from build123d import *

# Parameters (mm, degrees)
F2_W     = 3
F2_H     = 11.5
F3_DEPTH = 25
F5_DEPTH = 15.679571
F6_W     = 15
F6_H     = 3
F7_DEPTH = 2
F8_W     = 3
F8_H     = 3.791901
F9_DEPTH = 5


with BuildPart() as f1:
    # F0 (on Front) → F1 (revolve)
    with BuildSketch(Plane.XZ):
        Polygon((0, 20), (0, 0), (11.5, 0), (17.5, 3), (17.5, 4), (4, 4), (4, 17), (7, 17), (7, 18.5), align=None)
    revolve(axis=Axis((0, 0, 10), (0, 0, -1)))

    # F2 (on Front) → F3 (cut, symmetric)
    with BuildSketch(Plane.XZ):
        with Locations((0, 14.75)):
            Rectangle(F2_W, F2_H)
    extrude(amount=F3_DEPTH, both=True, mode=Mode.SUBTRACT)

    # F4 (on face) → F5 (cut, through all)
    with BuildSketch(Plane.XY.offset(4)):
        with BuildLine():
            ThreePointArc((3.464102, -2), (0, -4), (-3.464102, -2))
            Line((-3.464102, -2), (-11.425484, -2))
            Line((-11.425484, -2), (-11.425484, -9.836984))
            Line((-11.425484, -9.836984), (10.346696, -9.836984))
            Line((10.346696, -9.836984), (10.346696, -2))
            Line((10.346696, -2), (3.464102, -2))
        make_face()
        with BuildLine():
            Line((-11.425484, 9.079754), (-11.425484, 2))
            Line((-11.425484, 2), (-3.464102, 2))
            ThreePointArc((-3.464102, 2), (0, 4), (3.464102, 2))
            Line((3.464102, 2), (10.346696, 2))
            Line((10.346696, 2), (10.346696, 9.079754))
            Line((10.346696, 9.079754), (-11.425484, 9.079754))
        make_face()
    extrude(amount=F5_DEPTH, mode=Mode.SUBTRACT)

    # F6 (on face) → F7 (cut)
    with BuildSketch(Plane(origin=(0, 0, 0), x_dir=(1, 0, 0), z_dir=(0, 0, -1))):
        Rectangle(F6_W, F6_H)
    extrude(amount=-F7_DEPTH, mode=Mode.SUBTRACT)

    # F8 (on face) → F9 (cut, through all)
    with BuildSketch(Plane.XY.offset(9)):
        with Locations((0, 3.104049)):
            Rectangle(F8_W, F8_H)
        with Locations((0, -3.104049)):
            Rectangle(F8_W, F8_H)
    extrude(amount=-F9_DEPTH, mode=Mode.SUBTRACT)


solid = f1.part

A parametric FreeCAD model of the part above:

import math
import FreeCAD as App
import Part
import Sketcher

V = App.Vector
Q = App.Units.Quantity

doc = App.newDocument("Part")
params = doc.addObject("Spreadsheet::Sheet", "Params")
for row, (alias, value) in enumerate([
    ("sketch1_width", "3 mm"),
    ("sketch1_height", "20 mm"),
    ("sketch1_height2", "1 mm"),
    ("sketch1_height3", "13 mm"),
    ("sketch1_width2", "11.5 mm"),
    ("revolution_angle", "360 deg"),
    ("sketch2_width", "3 mm"),
    ("sketch2_height", "11.5 mm"),
    ("pocket1_length", "50 mm"),
    ("sketch3_radius", "4.000001 mm"),
    ("sketch4_width", "15 mm"),
    ("sketch4_height", "3 mm"),
    ("pocket3_length", "2 mm"),
    ("sketch5_width", "3 mm"),
    ("pocket4_length", "5 mm"),
], start=1):
    params.set(f"A{row}", alias)
    params.set(f"B{row}", "=" + value)
    params.setAlias(f"B{row}", alias)

body = doc.addObject("PartDesign::Body", "Body")

sketch1 = doc.addObject("Sketcher::SketchObject", "Sketch")
body.addObject(sketch1)
sketch1.AttachmentSupport = (doc.XZ_Plane, [""])
sketch1.MapMode = "FlatFace"
sketch1.addGeometry([
    Part.LineSegment(V(0, 20, 0), V(0, 0, 0)),
    Part.LineSegment(V(0, 0, 0), V(11.5, 0, 0)),
    Part.LineSegment(V(11.5, 0, 0), V(17.5, 3, 0)),
    Part.LineSegment(V(17.5, 3, 0), V(17.5, 4, 0)),
    Part.LineSegment(V(17.5, 4, 0), V(4, 4, 0)),
    Part.LineSegment(V(4, 4, 0), V(4, 17, 0)),
    Part.LineSegment(V(4, 17, 0), V(7, 17, 0)),
    Part.LineSegment(V(7, 17, 0), V(7, 18.5, 0)),
    Part.LineSegment(V(7, 18.5, 0), V(0, 20, 0)),
], False)
sketch1.addConstraint([
    Sketcher.Constraint("Coincident", 0, 2, 1, 1),
    Sketcher.Constraint("Coincident", 1, 2, 2, 1),
    Sketcher.Constraint("Coincident", 2, 2, 3, 1),
    Sketcher.Constraint("Coincident", 3, 2, 4, 1),
    Sketcher.Constraint("Coincident", 4, 2, 5, 1),
    Sketcher.Constraint("Coincident", 5, 2, 6, 1),
    Sketcher.Constraint("Coincident", 6, 2, 7, 1),
    Sketcher.Constraint("Coincident", 7, 2, 8, 1),
    Sketcher.Constraint("Coincident", 8, 2, 0, 1),
    Sketcher.Constraint("Vertical", 0),
    Sketcher.Constraint("Horizontal", 1),
    Sketcher.Constraint("Vertical", 3),
    Sketcher.Constraint("Horizontal", 4),
    Sketcher.Constraint("Vertical", 5),
    Sketcher.Constraint("Horizontal", 6),
    Sketcher.Constraint("Vertical", 7),
    Sketcher.Constraint("Coincident", 0, 2, -1, 1),
    Sketcher.Constraint("DistanceX", 6, 1, 6, 2, Q("3 mm")),
    Sketcher.Constraint("DistanceY", 0, 2, 0, 1, Q("20 mm")),
    Sketcher.Constraint("DistanceY", 3, 1, 3, 2, Q("1 mm")),
    Sketcher.Constraint("DistanceY", 5, 1, 5, 2, Q("13 mm")),
    Sketcher.Constraint("DistanceX", 1, 1, 1, 2, Q("11.5 mm")),
    Sketcher.Constraint("DistanceX", 4, 2, 4, 1, Q("13.5 mm")),
    Sketcher.Constraint("DistanceY", 7, 1, 7, 2, Q("1.5 mm")),
    Sketcher.Constraint("DistanceY", -1, 1, 2, 2, Q("3 mm")),
    Sketcher.Constraint("DistanceX", -1, 1, 4, 2, Q("4 mm")),
])
sketch1.setExpression("Constraints[17]", "Params.sketch1_width")
sketch1.setExpression("Constraints[18]", "Params.sketch1_height")
sketch1.setExpression("Constraints[19]", "Params.sketch1_height2")
sketch1.setExpression("Constraints[20]", "Params.sketch1_height3")
sketch1.setExpression("Constraints[21]", "Params.sketch1_width2")
revolution = doc.addObject("PartDesign::Revolution", "Revolution")
body.addObject(revolution)
revolution.Profile = sketch1
revolution.ReferenceAxis = (sketch1, ["V_Axis"])
revolution.setExpression("Angle", "Params.revolution_angle")

sketch2 = doc.addObject("Sketcher::SketchObject", "Sketch001")
body.addObject(sketch2)
sketch2.AttachmentSupport = (doc.XZ_Plane, [""])
sketch2.MapMode = "FlatFace"
sketch2.addGeometry([
    Part.LineSegment(V(-1.5, 20.5, 0), V(-1.5, 9, 0)),
    Part.LineSegment(V(-1.5, 9, 0), V(1.5, 9, 0)),
    Part.LineSegment(V(1.5, 9, 0), V(1.5, 20.5, 0)),
    Part.LineSegment(V(1.5, 20.5, 0), V(-1.5, 20.5, 0)),
], False)
sketch2.addConstraint([
    Sketcher.Constraint("Coincident", 0, 2, 1, 1),
    Sketcher.Constraint("Coincident", 1, 2, 2, 1),
    Sketcher.Constraint("Coincident", 2, 2, 3, 1),
    Sketcher.Constraint("Coincident", 3, 2, 0, 1),
    Sketcher.Constraint("Vertical", 0),
    Sketcher.Constraint("Horizontal", 1),
    Sketcher.Constraint("Vertical", 2),
    Sketcher.Constraint("Horizontal", 3),
    Sketcher.Constraint("DistanceX", 1, 1, 1, 2, Q("3 mm")),
    Sketcher.Constraint("DistanceY", 0, 2, 0, 1, Q("11.5 mm")),
    Sketcher.Constraint("DistanceY", -1, 1, 0, 2, Q("9 mm")),
    Sketcher.Constraint("DistanceX", 0, 2, -1, 1, Q("1.5 mm")),
])
sketch2.setExpression("Constraints[8]", "Params.sketch2_width")
sketch2.setExpression("Constraints[9]", "Params.sketch2_height")
pocket1 = doc.addObject("PartDesign::Pocket", "Pocket")
body.addObject(pocket1)
pocket1.Profile = sketch2
pocket1.setExpression("Length", "Params.pocket1_length")
pocket1.Midplane = True

sketch3 = doc.addObject("Sketcher::SketchObject", "Sketch002")
body.addObject(sketch3)
sketch3.AttachmentSupport = (doc.XY_Plane, [""])
sketch3.MapMode = "FlatFace"
sketch3.AttachmentOffset = App.Placement(V(0, 0, 4), App.Rotation())
sketch3.addGeometry([
    Part.ArcOfCircle(Part.Circle(V(0, 0.000001, 0), V(0, 0, 1), 4.000001), math.radians(-149.999994), math.radians(-30.000006)),
    Part.LineSegment(V(-3.464102, -2, 0), V(-11.425484, -2, 0)),
    Part.LineSegment(V(-11.425484, -2, 0), V(-11.425484, -9.836984, 0)),
    Part.LineSegment(V(-11.425484, -9.836984, 0), V(10.346696, -9.836984, 0)),
    Part.LineSegment(V(10.346696, -9.836984, 0), V(10.346696, -2, 0)),
    Part.LineSegment(V(10.346696, -2, 0), V(3.464102, -2, 0)),
    Part.LineSegment(V(-11.425484, 9.079754, 0), V(-11.425484, 2, 0)),
    Part.LineSegment(V(-11.425484, 2, 0), V(-3.464102, 2, 0)),
    Part.ArcOfCircle(Part.Circle(V(0, -0.000001, 0), V(0, 0, 1), 4.000001), math.radians(30.000006), math.radians(149.999994)),
    Part.LineSegment(V(3.464102, 2, 0), V(10.346696, 2, 0)),
    Part.LineSegment(V(10.346696, 2, 0), V(10.346696, 9.079754, 0)),
    Part.LineSegment(V(10.346696, 9.079754, 0), V(-11.425484, 9.079754, 0)),
], False)
sketch3.addConstraint([
    Sketcher.Constraint("Coincident", 0, 1, 1, 1),
    Sketcher.Constraint("Coincident", 1, 2, 2, 1),
    Sketcher.Constraint("Coincident", 2, 2, 3, 1),
    Sketcher.Constraint("Coincident", 3, 2, 4, 1),
    Sketcher.Constraint("Coincident", 4, 2, 5, 1),
    Sketcher.Constraint("Coincident", 5, 2, 0, 2),
    Sketcher.Constraint("Coincident", 6, 2, 7, 1),
    Sketcher.Constraint("Coincident", 7, 2, 8, 2),
    Sketcher.Constraint("Coincident", 8, 1, 9, 1),
    Sketcher.Constraint("Coincident", 9, 2, 10, 1),
    Sketcher.Constraint("Coincident", 10, 2, 11, 1),
    Sketcher.Constraint("Coincident", 11, 2, 6, 1),
    Sketcher.Constraint("Horizontal", 1),
    Sketcher.Constraint("Vertical", 2),
    Sketcher.Constraint("Horizontal", 3),
    Sketcher.Constraint("Vertical", 4),
    Sketcher.Constraint("Horizontal", 5),
    Sketcher.Constraint("Vertical", 6),
    Sketcher.Constraint("Horizontal", 7),
    Sketcher.Constraint("Horizontal", 9),
    Sketcher.Constraint("Vertical", 10),
    Sketcher.Constraint("Horizontal", 11),
    Sketcher.Constraint("Coincident", 0, 3, -1, 1),
    Sketcher.Constraint("Coincident", 8, 3, -1, 1),
    Sketcher.Constraint("Equal", 0, 8),
    Sketcher.Constraint("Symmetric", 1, 2, 6, 2, -1),
    Sketcher.Constraint("Symmetric", 4, 2, 9, 2, -1),
    Sketcher.Constraint("Horizontal", 1, 2, 4, 2),
    Sketcher.Constraint("Radius", 0, Q("4.000001 mm")),
    Sketcher.Constraint("DistanceY", 0, 1, -1, 1, Q("2 mm")),
    Sketcher.Constraint("DistanceX", 3, 1, 3, 2, Q("21.77218 mm")),
    Sketcher.Constraint("DistanceX", 0, 1, 3, 2, Q("13.810798 mm")),
    Sketcher.Constraint("DistanceY", 2, 2, 2, 1, Q("7.836984 mm")),
    Sketcher.Constraint("DistanceY", 6, 2, 6, 1, Q("7.079754 mm")),
])
sketch3.setExpression("Constraints[28]", "Params.sketch3_radius")
pocket2 = doc.addObject("PartDesign::Pocket", "Pocket001")
body.addObject(pocket2)
pocket2.Profile = sketch3
pocket2.Type = "ThroughAll"
pocket2.Reversed = True

sketch4 = doc.addObject("Sketcher::SketchObject", "Sketch003")
body.addObject(sketch4)
sketch4.AttachmentSupport = (doc.XY_Plane, [""])
sketch4.MapMode = "FlatFace"
sketch4.addGeometry([
    Part.LineSegment(V(-7.5, -1.5, 0), V(-7.5, 1.5, 0)),
    Part.LineSegment(V(-7.5, 1.5, 0), V(7.5, 1.5, 0)),
    Part.LineSegment(V(7.5, 1.5, 0), V(7.5, -1.5, 0)),
    Part.LineSegment(V(7.5, -1.5, 0), V(-7.5, -1.5, 0)),
], False)
sketch4.addConstraint([
    Sketcher.Constraint("Coincident", 0, 2, 1, 1),
    Sketcher.Constraint("Coincident", 1, 2, 2, 1),
    Sketcher.Constraint("Coincident", 2, 2, 3, 1),
    Sketcher.Constraint("Coincident", 3, 2, 0, 1),
    Sketcher.Constraint("Vertical", 0),
    Sketcher.Constraint("Horizontal", 1),
    Sketcher.Constraint("Vertical", 2),
    Sketcher.Constraint("Horizontal", 3),
    Sketcher.Constraint("Symmetric", 0, 2, 2, 2, -1, 1),
    Sketcher.Constraint("DistanceX", 1, 1, 1, 2, Q("15 mm")),
    Sketcher.Constraint("DistanceY", 0, 1, 0, 2, Q("3 mm")),
])
sketch4.setExpression("Constraints[9]", "Params.sketch4_width")
sketch4.setExpression("Constraints[10]", "Params.sketch4_height")
pocket3 = doc.addObject("PartDesign::Pocket", "Pocket002")
body.addObject(pocket3)
pocket3.Profile = sketch4
pocket3.setExpression("Length", "Params.pocket3_length")
pocket3.Reversed = True

sketch5 = doc.addObject("Sketcher::SketchObject", "Sketch004")
body.addObject(sketch5)
sketch5.AttachmentSupport = (doc.XY_Plane, [""])
sketch5.MapMode = "FlatFace"
sketch5.AttachmentOffset = App.Placement(V(0, 0, 9), App.Rotation())
sketch5.addGeometry([
    Part.LineSegment(V(-1.5, 5, 0), V(-1.5, 1.208098, 0)),
    Part.LineSegment(V(-1.5, 1.208098, 0), V(1.5, 1.208098, 0)),
    Part.LineSegment(V(1.5, 1.208098, 0), V(1.5, 5, 0)),
    Part.LineSegment(V(1.5, 5, 0), V(-1.5, 5, 0)),
    Part.LineSegment(V(-1.5, -1.208098, 0), V(-1.5, -5, 0)),
    Part.LineSegment(V(-1.5, -5, 0), V(1.5, -5, 0)),
    Part.LineSegment(V(1.5, -5, 0), V(1.5, -1.208098, 0)),
    Part.LineSegment(V(1.5, -1.208098, 0), V(-1.5, -1.208098, 0)),
], False)
sketch5.addConstraint([
    Sketcher.Constraint("Coincident", 0, 2, 1, 1),
    Sketcher.Constraint("Coincident", 1, 2, 2, 1),
    Sketcher.Constraint("Coincident", 2, 2, 3, 1),
    Sketcher.Constraint("Coincident", 3, 2, 0, 1),
    Sketcher.Constraint("Coincident", 4, 2, 5, 1),
    Sketcher.Constraint("Coincident", 5, 2, 6, 1),
    Sketcher.Constraint("Coincident", 6, 2, 7, 1),
    Sketcher.Constraint("Coincident", 7, 2, 4, 1),
    Sketcher.Constraint("Vertical", 0),
    Sketcher.Constraint("Horizontal", 1),
    Sketcher.Constraint("Vertical", 2),
    Sketcher.Constraint("Horizontal", 3),
    Sketcher.Constraint("Vertical", 4),
    Sketcher.Constraint("Horizontal", 5),
    Sketcher.Constraint("Vertical", 6),
    Sketcher.Constraint("Horizontal", 7),
    Sketcher.Constraint("Symmetric", 2, 2, 4, 2, -1, 1),
    Sketcher.Constraint("Symmetric", 0, 2, 6, 2, -1, 1),
    Sketcher.Constraint("Vertical", 3, 2, 4, 2),
    Sketcher.Constraint("DistanceX", 1, 1, 1, 2, Q("3 mm")),
    Sketcher.Constraint("DistanceY", -1, 1, 2, 2, Q("5 mm")),
    Sketcher.Constraint("DistanceY", 0, 2, 0, 1, Q("3.791901 mm")),
])
sketch5.setExpression("Constraints[19]", "Params.sketch5_width")
pocket4 = doc.addObject("PartDesign::Pocket", "Pocket003")
body.addObject(pocket4)
pocket4.Profile = sketch5
pocket4.setExpression("Length", "Params.pocket4_length")

doc.recompute()
